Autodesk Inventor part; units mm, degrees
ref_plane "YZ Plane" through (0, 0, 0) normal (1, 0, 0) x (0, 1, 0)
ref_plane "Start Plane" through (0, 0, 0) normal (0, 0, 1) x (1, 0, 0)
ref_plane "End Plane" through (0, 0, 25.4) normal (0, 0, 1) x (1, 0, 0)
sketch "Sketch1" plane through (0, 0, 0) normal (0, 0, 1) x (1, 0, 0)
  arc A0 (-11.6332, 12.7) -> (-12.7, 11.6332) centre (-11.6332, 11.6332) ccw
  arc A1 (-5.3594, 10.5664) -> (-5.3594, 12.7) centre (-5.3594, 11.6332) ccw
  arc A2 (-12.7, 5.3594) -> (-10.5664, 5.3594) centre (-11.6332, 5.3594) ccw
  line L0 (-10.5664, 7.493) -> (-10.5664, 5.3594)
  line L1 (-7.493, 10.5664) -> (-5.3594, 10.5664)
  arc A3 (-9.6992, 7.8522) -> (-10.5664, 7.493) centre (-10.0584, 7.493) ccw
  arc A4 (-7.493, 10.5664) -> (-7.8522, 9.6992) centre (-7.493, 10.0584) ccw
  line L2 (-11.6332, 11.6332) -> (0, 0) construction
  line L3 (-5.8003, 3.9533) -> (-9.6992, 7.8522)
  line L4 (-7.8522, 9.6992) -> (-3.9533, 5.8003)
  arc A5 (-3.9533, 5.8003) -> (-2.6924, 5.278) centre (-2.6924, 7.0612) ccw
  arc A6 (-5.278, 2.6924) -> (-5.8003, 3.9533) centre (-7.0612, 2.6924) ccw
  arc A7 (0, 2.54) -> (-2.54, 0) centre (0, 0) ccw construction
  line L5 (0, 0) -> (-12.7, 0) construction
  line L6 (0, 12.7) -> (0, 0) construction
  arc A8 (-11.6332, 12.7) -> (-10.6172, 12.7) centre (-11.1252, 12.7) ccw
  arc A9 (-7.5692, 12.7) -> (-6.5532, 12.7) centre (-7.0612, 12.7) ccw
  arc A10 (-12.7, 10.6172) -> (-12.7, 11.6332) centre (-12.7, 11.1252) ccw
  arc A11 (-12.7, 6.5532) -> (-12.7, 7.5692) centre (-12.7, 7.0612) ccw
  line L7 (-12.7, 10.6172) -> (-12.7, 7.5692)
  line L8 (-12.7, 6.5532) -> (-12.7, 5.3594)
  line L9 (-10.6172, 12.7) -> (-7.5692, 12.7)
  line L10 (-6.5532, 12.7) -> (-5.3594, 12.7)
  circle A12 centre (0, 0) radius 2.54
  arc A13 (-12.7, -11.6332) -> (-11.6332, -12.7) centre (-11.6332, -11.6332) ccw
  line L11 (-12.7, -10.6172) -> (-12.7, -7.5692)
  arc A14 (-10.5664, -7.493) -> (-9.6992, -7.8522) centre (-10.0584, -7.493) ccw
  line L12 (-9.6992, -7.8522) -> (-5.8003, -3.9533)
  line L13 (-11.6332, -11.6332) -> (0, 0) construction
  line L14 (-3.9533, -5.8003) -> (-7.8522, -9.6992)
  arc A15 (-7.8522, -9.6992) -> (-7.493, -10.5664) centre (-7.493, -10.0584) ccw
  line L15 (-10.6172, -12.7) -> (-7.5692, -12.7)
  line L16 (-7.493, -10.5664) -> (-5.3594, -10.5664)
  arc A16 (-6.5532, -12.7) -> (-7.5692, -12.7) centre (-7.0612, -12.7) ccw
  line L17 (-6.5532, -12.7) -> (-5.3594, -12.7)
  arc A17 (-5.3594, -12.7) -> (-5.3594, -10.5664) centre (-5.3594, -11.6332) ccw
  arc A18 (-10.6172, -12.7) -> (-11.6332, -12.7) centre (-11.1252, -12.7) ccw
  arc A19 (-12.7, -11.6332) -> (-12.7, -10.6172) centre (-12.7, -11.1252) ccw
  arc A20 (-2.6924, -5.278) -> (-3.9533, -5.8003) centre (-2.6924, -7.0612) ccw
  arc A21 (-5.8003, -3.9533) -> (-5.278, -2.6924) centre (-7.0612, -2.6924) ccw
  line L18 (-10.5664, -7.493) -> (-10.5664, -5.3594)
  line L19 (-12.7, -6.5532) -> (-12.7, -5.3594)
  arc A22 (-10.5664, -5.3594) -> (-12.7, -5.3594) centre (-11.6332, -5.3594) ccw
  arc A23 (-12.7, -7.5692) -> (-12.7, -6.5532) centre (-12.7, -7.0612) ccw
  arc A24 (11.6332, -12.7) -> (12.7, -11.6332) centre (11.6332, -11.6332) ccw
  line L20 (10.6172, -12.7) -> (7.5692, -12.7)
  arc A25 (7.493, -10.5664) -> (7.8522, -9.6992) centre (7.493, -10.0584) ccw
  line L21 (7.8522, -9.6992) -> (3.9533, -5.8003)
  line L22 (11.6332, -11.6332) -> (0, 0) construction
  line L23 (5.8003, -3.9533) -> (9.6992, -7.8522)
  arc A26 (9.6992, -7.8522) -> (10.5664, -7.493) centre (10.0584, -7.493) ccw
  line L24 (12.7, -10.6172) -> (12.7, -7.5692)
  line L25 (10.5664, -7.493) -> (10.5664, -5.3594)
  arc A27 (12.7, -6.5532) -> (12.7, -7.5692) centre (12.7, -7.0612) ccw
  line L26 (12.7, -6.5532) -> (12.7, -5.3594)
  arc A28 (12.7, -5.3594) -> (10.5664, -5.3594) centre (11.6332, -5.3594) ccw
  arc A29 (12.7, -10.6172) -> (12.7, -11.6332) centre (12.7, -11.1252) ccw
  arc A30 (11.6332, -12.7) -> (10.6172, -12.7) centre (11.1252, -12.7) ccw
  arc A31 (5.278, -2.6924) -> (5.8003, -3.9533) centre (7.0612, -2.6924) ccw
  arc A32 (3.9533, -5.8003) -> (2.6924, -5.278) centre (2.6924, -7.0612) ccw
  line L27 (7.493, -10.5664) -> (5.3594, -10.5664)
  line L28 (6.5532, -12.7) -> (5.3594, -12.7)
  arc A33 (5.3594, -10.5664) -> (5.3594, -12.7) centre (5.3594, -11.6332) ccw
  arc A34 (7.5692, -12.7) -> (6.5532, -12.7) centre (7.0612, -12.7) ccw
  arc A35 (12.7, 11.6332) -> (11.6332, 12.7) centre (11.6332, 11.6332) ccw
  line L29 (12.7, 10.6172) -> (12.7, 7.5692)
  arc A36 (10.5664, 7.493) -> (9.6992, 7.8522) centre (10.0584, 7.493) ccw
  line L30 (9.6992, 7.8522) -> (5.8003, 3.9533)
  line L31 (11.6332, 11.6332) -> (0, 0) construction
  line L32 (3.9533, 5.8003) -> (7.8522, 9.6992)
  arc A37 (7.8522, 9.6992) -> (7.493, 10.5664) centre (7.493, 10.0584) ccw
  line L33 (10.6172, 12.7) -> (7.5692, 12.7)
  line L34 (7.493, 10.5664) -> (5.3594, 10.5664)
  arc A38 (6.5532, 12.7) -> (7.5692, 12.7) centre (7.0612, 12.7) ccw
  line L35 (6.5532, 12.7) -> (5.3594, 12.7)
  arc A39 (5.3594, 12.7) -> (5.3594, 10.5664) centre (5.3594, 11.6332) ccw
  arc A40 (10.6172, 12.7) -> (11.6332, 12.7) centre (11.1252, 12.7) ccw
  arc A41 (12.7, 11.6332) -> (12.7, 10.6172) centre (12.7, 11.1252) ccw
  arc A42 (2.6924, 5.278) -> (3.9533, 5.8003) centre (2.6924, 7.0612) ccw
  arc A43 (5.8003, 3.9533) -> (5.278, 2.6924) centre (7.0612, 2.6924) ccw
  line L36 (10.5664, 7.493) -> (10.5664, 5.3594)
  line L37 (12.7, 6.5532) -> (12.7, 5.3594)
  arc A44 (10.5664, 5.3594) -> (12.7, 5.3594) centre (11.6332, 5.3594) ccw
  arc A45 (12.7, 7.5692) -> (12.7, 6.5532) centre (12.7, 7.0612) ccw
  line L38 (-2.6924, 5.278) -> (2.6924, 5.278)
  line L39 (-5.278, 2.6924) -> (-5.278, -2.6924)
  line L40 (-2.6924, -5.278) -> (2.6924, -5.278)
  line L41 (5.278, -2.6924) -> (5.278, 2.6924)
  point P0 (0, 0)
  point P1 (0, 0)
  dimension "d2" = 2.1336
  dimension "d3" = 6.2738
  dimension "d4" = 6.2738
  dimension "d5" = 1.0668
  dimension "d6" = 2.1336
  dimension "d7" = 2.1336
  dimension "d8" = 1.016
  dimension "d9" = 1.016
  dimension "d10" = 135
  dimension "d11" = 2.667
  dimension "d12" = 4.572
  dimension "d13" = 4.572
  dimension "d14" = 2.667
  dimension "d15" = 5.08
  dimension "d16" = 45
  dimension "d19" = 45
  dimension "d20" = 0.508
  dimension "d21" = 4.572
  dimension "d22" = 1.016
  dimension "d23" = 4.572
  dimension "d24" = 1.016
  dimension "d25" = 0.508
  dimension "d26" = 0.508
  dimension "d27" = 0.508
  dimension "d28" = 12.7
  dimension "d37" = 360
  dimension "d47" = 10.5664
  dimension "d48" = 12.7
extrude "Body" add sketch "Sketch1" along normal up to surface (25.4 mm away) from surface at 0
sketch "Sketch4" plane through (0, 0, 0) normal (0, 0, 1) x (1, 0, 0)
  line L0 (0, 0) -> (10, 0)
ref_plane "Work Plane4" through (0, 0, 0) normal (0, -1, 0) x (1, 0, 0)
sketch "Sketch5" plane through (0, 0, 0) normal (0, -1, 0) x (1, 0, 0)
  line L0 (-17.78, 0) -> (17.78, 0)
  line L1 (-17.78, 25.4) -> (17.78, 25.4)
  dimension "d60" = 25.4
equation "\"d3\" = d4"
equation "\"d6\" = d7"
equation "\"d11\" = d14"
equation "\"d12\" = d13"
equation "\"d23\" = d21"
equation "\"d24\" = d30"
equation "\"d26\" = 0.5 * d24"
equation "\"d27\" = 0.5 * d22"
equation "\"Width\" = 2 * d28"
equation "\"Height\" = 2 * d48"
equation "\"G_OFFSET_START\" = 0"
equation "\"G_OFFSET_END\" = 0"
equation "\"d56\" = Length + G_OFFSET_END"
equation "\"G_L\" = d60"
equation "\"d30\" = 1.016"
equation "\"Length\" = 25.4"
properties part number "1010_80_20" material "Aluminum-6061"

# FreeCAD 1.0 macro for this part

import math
import FreeCAD as App
import Part
import Sketcher

V = App.Vector
Q = App.Units.Quantity

doc = App.newDocument("Part")
body = doc.addObject("PartDesign::Body", "Body")

sketch1 = doc.addObject("Sketcher::SketchObject", "Sketch")
body.addObject(sketch1)
sketch1.AttachmentSupport = (doc.XY_Plane, [""])
sketch1.MapMode = "FlatFace"
sketch1.addGeometry(Part.ArcOfCircle(Part.Circle(V(-11.1, 12.7, 0), V(0, 0, 1), 0.5), math.radians(180), math.radians(360)), False)
sketch1.addGeometry(Part.ArcOfCircle(Part.Circle(V(-11.6, 11.6, 0), V(0, 0, 1), 1.1), math.radians(90), math.radians(180)), False)
sketch1.addGeometry(Part.ArcOfCircle(Part.Circle(V(-12.7, 11.1, 0), V(0, 0, 1), 0.5), math.radians(-90), math.radians(90)), False)
sketch1.addGeometry(Part.LineSegment(V(-12.7, 10.6, 0), V(-12.7, 7.6, 0)), False)
sketch1.addGeometry(Part.ArcOfCircle(Part.Circle(V(-12.7, 7.1, 0), V(0, 0, 1), 0.5), math.radians(-90), math.radians(90)), False)
sketch1.addGeometry(Part.LineSegment(V(-12.7, 6.6, 0), V(-12.7, 5.4, 0)), False)
sketch1.addGeometry(Part.ArcOfCircle(Part.Circle(V(-11.6, 5.4, 0), V(0, 0, 1), 1.1), math.radians(180), math.radians(360)), False)
sketch1.addGeometry(Part.LineSegment(V(-10.6, 5.4, 0), V(-10.6, 7.5, 0)), False)
sketch1.addGeometry(Part.ArcOfCircle(Part.Circle(V(-10.1, 7.5, 0), V(0, 0, 1), 0.5), math.radians(45), math.radians(180)), False)
sketch1.addGeometry(Part.LineSegment(V(-9.7, 7.9, 0), V(-5.8, 4, 0)), False)
sketch1.addGeometry(Part.ArcOfCircle(Part.Circle(V(-7.1, 2.7, 0), V(0, 0, 1), 1.8), math.radians(0), math.radians(45)), False)
sketch1.addGeometry(Part.LineSegment(V(-5.3, 2.7, 0), V(-5.3, -2.7, 0)), False)
sketch1.addGeometry(Part.ArcOfCircle(Part.Circle(V(-7.1, -2.7, 0), V(0, 0, 1), 1.8), math.radians(-45), math.radians(0)), False)
sketch1.addGeometry(Part.LineSegment(V(-5.8, -4, 0), V(-9.7, -7.9, 0)), False)
sketch1.addGeometry(Part.ArcOfCircle(Part.Circle(V(-10.1, -7.5, 0), V(0, 0, 1), 0.5), math.radians(180), math.radians(315)), False)
sketch1.addGeometry(Part.LineSegment(V(-10.6, -7.5, 0), V(-10.6, -5.4, 0)), False)
sketch1.addGeometry(Part.ArcOfCircle(Part.Circle(V(-11.6, -5.4, 0), V(0, 0, 1), 1.1), math.radians(0), math.radians(180)), False)
sketch1.addGeometry(Part.LineSegment(V(-12.7, -5.4, 0), V(-12.7, -6.6, 0)), False)
sketch1.addGeometry(Part.ArcOfCircle(Part.Circle(V(-12.7, -7.1, 0), V(0, 0, 1), 0.5), math.radians(-90), math.radians(90)), False)
sketch1.addGeometry(Part.LineSegment(V(-12.7, -7.6, 0), V(-12.7, -10.6, 0)), False)
sketch1.addGeometry(Part.ArcOfCircle(Part.Circle(V(-12.7, -11.1, 0), V(0, 0, 1), 0.5), math.radians(-90), math.radians(90)), False)
sketch1.addGeometry(Part.ArcOfCircle(Part.Circle(V(-11.6, -11.6, 0), V(0, 0, 1), 1.1), math.radians(180), math.radians(270)), False)
sketch1.addGeometry(Part.ArcOfCircle(Part.Circle(V(-11.1, -12.7, 0), V(0, 0, 1), 0.5), math.radians(0), math.radians(180)), False)
sketch1.addGeometry(Part.LineSegment(V(-10.6, -12.7, 0), V(-7.6, -12.7, 0)), False)
sketch1.addGeometry(Part.ArcOfCircle(Part.Circle(V(-7.1, -12.7, 0), V(0, 0, 1), 0.5), math.radians(0), math.radians(180)), False)
sketch1.addGeometry(Part.LineSegment(V(-6.6, -12.7, 0), V(-5.4, -12.7, 0)), False)
sketch1.addGeometry(Part.ArcOfCircle(Part.Circle(V(-5.4, -11.6, 0), V(0, 0, 1), 1.1), math.radians(-90), math.radians(90)), False)
sketch1.addGeometry(Part.LineSegment(V(-5.4, -10.6, 0), V(-7.5, -10.6, 0)), False)
sketch1.addGeometry(Part.ArcOfCircle(Part.Circle(V(-7.5, -10.1, 0), V(0, 0, 1), 0.5), math.radians(135), math.radians(270)), False)
sketch1.addGeometry(Part.LineSegment(V(-7.9, -9.7, 0), V(-4, -5.8, 0)), False)
sketch1.addGeometry(Part.ArcOfCircle(Part.Circle(V(-2.7, -7.1, 0), V(0, 0, 1), 1.8), math.radians(90), math.radians(135)), False)
sketch1.addGeometry(Part.LineSegment(V(-2.7, -5.3, 0), V(2.7, -5.3, 0)), False)
sketch1.addGeometry(Part.ArcOfCircle(Part.Circle(V(2.7, -7.1, 0), V(0, 0, 1), 1.8), math.radians(45), math.radians(90)), False)
sketch1.addGeometry(Part.LineSegment(V(4, -5.8, 0), V(7.9, -9.7, 0)), False)
sketch1.addGeometry(Part.ArcOfCircle(Part.Circle(V(7.5, -10.1, 0), V(0, 0, 1), 0.5), math.radians(-90), math.radians(45)), False)
sketch1.addGeometry(Part.LineSegment(V(7.5, -10.6, 0), V(5.4, -10.6, 0)), False)
sketch1.addGeometry(Part.ArcOfCircle(Part.Circle(V(5.4, -11.6, 0), V(0, 0, 1), 1.1), math.radians(90), math.radians(270)), False)
sketch1.addGeometry(Part.LineSegment(V(5.4, -12.7, 0), V(6.6, -12.7, 0)), False)
sketch1.addGeometry(Part.ArcOfCircle(Part.Circle(V(7.1, -12.7, 0), V(0, 0, 1), 0.5), math.radians(0), math.radians(180)), False)
sketch1.addGeometry(Part.LineSegment(V(7.6, -12.7, 0), V(10.6, -12.7, 0)), False)
sketch1.addGeometry(Part.ArcOfCircle(Part.Circle(V(11.1, -12.7, 0), V(0, 0, 1), 0.5), math.radians(0), math.radians(180)), False)
sketch1.addGeometry(Part.ArcOfCircle(Part.Circle(V(11.6, -11.6, 0), V(0, 0, 1), 1.1), math.radians(-90), math.radians(0)), False)
sketch1.addGeometry(Part.ArcOfCircle(Part.Circle(V(12.7, -11.1, 0), V(0, 0, 1), 0.5), math.radians(90), math.radians(270)), False)
sketch1.addGeometry(Part.LineSegment(V(12.7, -10.6, 0), V(12.7, -7.6, 0)), False)
sketch1.addGeometry(Part.ArcOfCircle(Part.Circle(V(12.7, -7.1, 0), V(0, 0, 1), 0.5), math.radians(90), math.radians(270)), False)
sketch1.addGeometry(Part.LineSegment(V(12.7, -6.6, 0), V(12.7, -5.4, 0)), False)
sketch1.addGeometry(Part.ArcOfCircle(Part.Circle(V(11.6, -5.4, 0), V(0, 0, 1), 1.1), math.radians(0), math.radians(180)), False)
sketch1.addGeometry(Part.LineSegment(V(10.6, -5.4, 0), V(10.6, -7.5, 0)), False)
sketch1.addGeometry(Part.ArcOfCircle(Part.Circle(V(10.1, -7.5, 0), V(0, 0, 1), 0.5), math.radians(-135), math.radians(0)), False)
sketch1.addGeometry(Part.LineSegment(V(9.7, -7.9, 0), V(5.8, -4, 0)), False)
sketch1.addGeometry(Part.ArcOfCircle(Part.Circle(V(7.1, -2.7, 0), V(0, 0, 1), 1.8), math.radians(180), math.radians(225)), False)
sketch1.addGeometry(Part.LineSegment(V(5.3, -2.7, 0), V(5.3, 2.7, 0)), False)
sketch1.addGeometry(Part.ArcOfCircle(Part.Circle(V(7.1, 2.7, 0), V(0, 0, 1), 1.8), math.radians(135), math.radians(180)), False)
sketch1.addGeometry(Part.LineSegment(V(5.8, 4, 0), V(9.7, 7.9, 0)), False)
sketch1.addGeometry(Part.ArcOfCircle(Part.Circle(V(10.1, 7.5, 0), V(0, 0, 1), 0.5), math.radians(0), math.radians(135)), False)
sketch1.addGeometry(Part.LineSegment(V(10.6, 7.5, 0), V(10.6, 5.4, 0)), False)
sketch1.addGeometry(Part.ArcOfCircle(Part.Circle(V(11.6, 5.4, 0), V(0, 0, 1), 1.1), math.radians(180), math.radians(360)), False)
sketch1.addGeometry(Part.LineSegment(V(12.7, 5.4, 0), V(12.7, 6.6, 0)), False)
sketch1.addGeometry(Part.ArcOfCircle(Part.Circle(V(12.7, 7.1, 0), V(0, 0, 1), 0.5), math.radians(90), math.radians(270)), False)
sketch1.addGeometry(Part.LineSegment(V(12.7, 7.6, 0), V(12.7, 10.6, 0)), False)
sketch1.addGeometry(Part.ArcOfCircle(Part.Circle(V(12.7, 11.1, 0), V(0, 0, 1), 0.5), math.radians(90), math.radians(270)), False)
sketch1.addGeometry(Part.ArcOfCircle(Part.Circle(V(11.6, 11.6, 0), V(0, 0, 1), 1.1), math.radians(0), math.radians(90)), False)
sketch1.addGeometry(Part.ArcOfCircle(Part.Circle(V(11.1, 12.7, 0), V(0, 0, 1), 0.5), math.radians(180), math.radians(360)), False)
sketch1.addGeometry(Part.LineSegment(V(10.6, 12.7, 0), V(7.6, 12.7, 0)), False)
sketch1.addGeometry(Part.ArcOfCircle(Part.Circle(V(7.1, 12.7, 0), V(0, 0, 1), 0.5), math.radians(180), math.radians(360)), False)
sketch1.addGeometry(Part.LineSegment(V(6.6, 12.7, 0), V(5.4, 12.7, 0)), False)
sketch1.addGeometry(Part.ArcOfCircle(Part.Circle(V(5.4, 11.6, 0), V(0, 0, 1), 1.1), math.radians(90), math.radians(270)), False)
sketch1.addGeometry(Part.LineSegment(V(5.4, 10.6, 0), V(7.5, 10.6, 0)), False)
sketch1.addGeometry(Part.ArcOfCircle(Part.Circle(V(7.5, 10.1, 0), V(0, 0, 1), 0.5), math.radians(-45), math.radians(90)), False)
sketch1.addGeometry(Part.LineSegment(V(7.9, 9.7, 0), V(4, 5.8, 0)), False)
sketch1.addGeometry(Part.ArcOfCircle(Part.Circle(V(2.7, 7.1, 0), V(0, 0, 1), 1.8), math.radians(-90), math.radians(-45)), False)
sketch1.addGeometry(Part.LineSegment(V(2.7, 5.3, 0), V(-2.7, 5.3, 0)), False)
sketch1.addGeometry(Part.ArcOfCircle(Part.Circle(V(-2.7, 7.1, 0), V(0, 0, 1), 1.8), math.radians(-135), math.radians(-90)), False)
sketch1.addGeometry(Part.LineSegment(V(-4, 5.8, 0), V(-7.9, 9.7, 0)), False)
sketch1.addGeometry(Part.ArcOfCircle(Part.Circle(V(-7.5, 10.1, 0), V(0, 0, 1), 0.5), math.radians(90), math.radians(225)), False)
sketch1.addGeometry(Part.LineSegment(V(-7.5, 10.6, 0), V(-5.4, 10.6, 0)), False)
sketch1.addGeometry(Part.ArcOfCircle(Part.Circle(V(-5.4, 11.6, 0), V(0, 0, 1), 1.1), math.radians(-90), math.radians(90)), False)
sketch1.addGeometry(Part.LineSegment(V(-5.4, 12.7, 0), V(-6.6, 12.7, 0)), False)
sketch1.addGeometry(Part.ArcOfCircle(Part.Circle(V(-7.1, 12.7, 0), V(0, 0, 1), 0.5), math.radians(180), math.radians(360)), False)
sketch1.addGeometry(Part.LineSegment(V(-7.6, 12.7, 0), V(-10.6, 12.7, 0)), False)
sketch1.addGeometry(Part.Circle(V(0, 0, 0), V(0, 0, 1), 2.5), False)
sketch1.addConstraint(Sketcher.Constraint("Coincident", 0, 1, 1, 1))
sketch1.addConstraint(Sketcher.Constraint("Coincident", 1, 2, 2, 2))
sketch1.addConstraint(Sketcher.Constraint("Coincident", 2, 1, 3, 1))
sketch1.addConstraint(Sketcher.Constraint("Coincident", 3, 2, 4, 2))
sketch1.addConstraint(Sketcher.Constraint("Coincident", 4, 1, 5, 1))
sketch1.addConstraint(Sketcher.Constraint("Tangent", 5, 2, 6, 1))
sketch1.addConstraint(Sketcher.Constraint("Tangent", 6, 2, 7, 1))
sketch1.addConstraint(Sketcher.Constraint("Tangent", 7, 2, 8, 2))
sketch1.addConstraint(Sketcher.Constraint("Tangent", 8, 1, 9, 1))
sketch1.addConstraint(Sketcher.Constraint("Tangent", 9, 2, 10, 2))
sketch1.addConstraint(Sketcher.Constraint("Tangent", 10, 1, 11, 1))
sketch1.addConstraint(Sketcher.Constraint("Tangent", 11, 2, 12, 2))
sketch1.addConstraint(Sketcher.Constraint("Tangent", 12, 1, 13, 1))
sketch1.addConstraint(Sketcher.Constraint("Tangent", 13, 2, 14, 2))
sketch1.addConstraint(Sketcher.Constraint("Tangent", 14, 1, 15, 1))
sketch1.addConstraint(Sketcher.Constraint("Tangent", 15, 2, 16, 1))
sketch1.addConstraint(Sketcher.Constraint("Tangent", 16, 2, 17, 1))
sketch1.addConstraint(Sketcher.Constraint("Coincident", 17, 2, 18, 2))
sketch1.addConstraint(Sketcher.Constraint("Coincident", 18, 1, 19, 1))
sketch1.addConstraint(Sketcher.Constraint("Coincident", 19, 2, 20, 2))
sketch1.addConstraint(Sketcher.Constraint("Coincident", 20, 1, 21, 1))
sketch1.addConstraint(Sketcher.Constraint("Coincident", 21, 2, 22, 2))
sketch1.addConstraint(Sketcher.Constraint("Coincident", 22, 1, 23, 1))
sketch1.addConstraint(Sketcher.Constraint("Coincident", 23, 2, 24, 2))
sketch1.addConstraint(Sketcher.Constraint("Coincident", 24, 1, 25, 1))
sketch1.addConstraint(Sketcher.Constraint("Tangent", 25, 2, 26, 1))
sketch1.addConstraint(Sketcher.Constraint("Tangent", 26, 2, 27, 1))
sketch1.addConstraint(Sketcher.Constraint("Tangent", 27, 2, 28, 2))
sketch1.addConstraint(Sketcher.Constraint("Tangent", 28, 1, 29, 1))
sketch1.addConstraint(Sketcher.Constraint("Tangent", 29, 2, 30, 2))
sketch1.addConstraint(Sketcher.Constraint("Tangent", 30, 1, 31, 1))
sketch1.addConstraint(Sketcher.Constraint("Tangent", 31, 2, 32, 2))
sketch1.addConstraint(Sketcher.Constraint("Tangent", 32, 1, 33, 1))
sketch1.addConstraint(Sketcher.Constraint("Tangent", 33, 2, 34, 2))
sketch1.addConstraint(Sketcher.Constraint("Tangent", 34, 1, 35, 1))
sketch1.addConstraint(Sketcher.Constraint("Tangent", 35, 2, 36, 1))
sketch1.addConstraint(Sketcher.Constraint("Tangent", 36, 2, 37, 1))
sketch1.addConstraint(Sketcher.Constraint("Coincident", 37, 2, 38, 2))
sketch1.addConstraint(Sketcher.Constraint("Coincident", 38, 1, 39, 1))
sketch1.addConstraint(Sketcher.Constraint("Coincident", 39, 2, 40, 2))
sketch1.addConstraint(Sketcher.Constraint("Coincident", 40, 1, 41, 1))
sketch1.addConstraint(Sketcher.Constraint("Coincident", 41, 2, 42, 2))
sketch1.addConstraint(Sketcher.Constraint("Coincident", 42, 1, 43, 1))
sketch1.addConstraint(Sketcher.Constraint("Coincident", 43, 2, 44, 2))
sketch1.addConstraint(Sketcher.Constraint("Coincident", 44, 1, 45, 1))
sketch1.addConstraint(Sketcher.Constraint("Tangent", 45, 2, 46, 1))
sketch1.addConstraint(Sketcher.Constraint("Tangent", 46, 2, 47, 1))
sketch1.addConstraint(Sketcher.Constraint("Tangent", 47, 2, 48, 2))
sketch1.addConstraint(Sketcher.Constraint("Tangent", 48, 1, 49, 1))
sketch1.addConstraint(Sketcher.Constraint("Tangent", 49, 2, 50, 2))
sketch1.addConstraint(Sketcher.Constraint("Tangent", 50, 1, 51, 1))
sketch1.addConstraint(Sketcher.Constraint("Tangent", 51, 2, 52, 2))
sketch1.addConstraint(Sketcher.Constraint("Tangent", 52, 1, 53, 1))
sketch1.addConstraint(Sketcher.Constraint("Tangent", 53, 2, 54, 2))
sketch1.addConstraint(Sketcher.Constraint("Tangent", 54, 1, 55, 1))
sketch1.addConstraint(Sketcher.Constraint("Tangent", 55, 2, 56, 1))
sketch1.addConstraint(Sketcher.Constraint("Tangent", 56, 2, 57, 1))
sketch1.addConstraint(Sketcher.Constraint("Coincident", 57, 2, 58, 2))
sketch1.addConstraint(Sketcher.Constraint("Coincident", 58, 1, 59, 1))
sketch1.addConstraint(Sketcher.Constraint("Coincident", 59, 2, 60, 2))
sketch1.addConstraint(Sketcher.Constraint("Coincident", 60, 1, 61, 1))
sketch1.addConstraint(Sketcher.Constraint("Coincident", 61, 2, 62, 2))
sketch1.addConstraint(Sketcher.Constraint("Coincident", 62, 1, 63, 1))
sketch1.addConstraint(Sketcher.Constraint("Coincident", 63, 2, 64, 2))
sketch1.addConstraint(Sketcher.Constraint("Coincident", 64, 1, 65, 1))
sketch1.addConstraint(Sketcher.Constraint("Tangent", 65, 2, 66, 1))
sketch1.addConstraint(Sketcher.Constraint("Tangent", 66, 2, 67, 1))
sketch1.addConstraint(Sketcher.Constraint("Tangent", 67, 2, 68, 2))
sketch1.addConstraint(Sketcher.Constraint("Tangent", 68, 1, 69, 1))
sketch1.addConstraint(Sketcher.Constraint("Tangent", 69, 2, 70, 2))
sketch1.addConstraint(Sketcher.Constraint("Tangent", 70, 1, 71, 1))
sketch1.addConstraint(Sketcher.Constraint("Tangent", 71, 2, 72, 2))
sketch1.addConstraint(Sketcher.Constraint("Tangent", 72, 1, 73, 1))
sketch1.addConstraint(Sketcher.Constraint("Tangent", 73, 2, 74, 2))
sketch1.addConstraint(Sketcher.Constraint("Tangent", 74, 1, 75, 1))
sketch1.addConstraint(Sketcher.Constraint("Tangent", 75, 2, 76, 1))
sketch1.addConstraint(Sketcher.Constraint("Tangent", 76, 2, 77, 1))
sketch1.addConstraint(Sketcher.Constraint("Coincident", 77, 2, 78, 2))
sketch1.addConstraint(Sketcher.Constraint("Coincident", 78, 1, 79, 1))
sketch1.addConstraint(Sketcher.Constraint("Coincident", 79, 2, 0, 2))
sketch1.addConstraint(Sketcher.Constraint("Vertical", 3))
sketch1.addConstraint(Sketcher.Constraint("Vertical", 5))
sketch1.addConstraint(Sketcher.Constraint("Vertical", 7))
sketch1.addConstraint(Sketcher.Constraint("Vertical", 11))
sketch1.addConstraint(Sketcher.Constraint("Vertical", 15))
sketch1.addConstraint(Sketcher.Constraint("Vertical", 17))
sketch1.addConstraint(Sketcher.Constraint("Vertical", 19))
sketch1.addConstraint(Sketcher.Constraint("Horizontal", 23))
sketch1.addConstraint(Sketcher.Constraint("Horizontal", 25))
sketch1.addConstraint(Sketcher.Constraint("Horizontal", 27))
sketch1.addConstraint(Sketcher.Constraint("Horizontal", 31))
sketch1.addConstraint(Sketcher.Constraint("Horizontal", 35))
sketch1.addConstraint(Sketcher.Constraint("Horizontal", 37))
sketch1.addConstraint(Sketcher.Constraint("Horizontal", 39))
sketch1.addConstraint(Sketcher.Constraint("Vertical", 43))
sketch1.addConstraint(Sketcher.Constraint("Vertical", 45))
sketch1.addConstraint(Sketcher.Constraint("Vertical", 47))
sketch1.addConstraint(Sketcher.Constraint("Vertical", 51))
sketch1.addConstraint(Sketcher.Constraint("Vertical", 55))
sketch1.addConstraint(Sketcher.Constraint("Vertical", 57))
sketch1.addConstraint(Sketcher.Constraint("Vertical", 59))
sketch1.addConstraint(Sketcher.Constraint("Horizontal", 63))
sketch1.addConstraint(Sketcher.Constraint("Horizontal", 65))
sketch1.addConstraint(Sketcher.Constraint("Horizontal", 67))
sketch1.addConstraint(Sketcher.Constraint("Horizontal", 71))
sketch1.addConstraint(Sketcher.Constraint("Horizontal", 75))
sketch1.addConstraint(Sketcher.Constraint("Horizontal", 77))
sketch1.addConstraint(Sketcher.Constraint("Horizontal", 79))
sketch1.addConstraint(Sketcher.Constraint("Coincident", 80, 3, -1, 1))
sketch1.addConstraint(Sketcher.Constraint("Equal", 0, 2))
sketch1.addConstraint(Sketcher.Constraint("Equal", 2, 4))
sketch1.addConstraint(Sketcher.Constraint("Equal", 1, 6))
sketch1.addConstraint(Sketcher.Constraint("Equal", 4, 8))
sketch1.addConstraint(Sketcher.Constraint("Equal", 10, 12))
sketch1.addConstraint(Sketcher.Constraint("Equal", 8, 14))
sketch1.addConstraint(Sketcher.Constraint("Equal", 6, 16))
sketch1.addConstraint(Sketcher.Constraint("Equal", 14, 18))
sketch1.addConstraint(Sketcher.Constraint("Equal", 18, 20))
sketch1.addConstraint(Sketcher.Constraint("Equal", 16, 21))
sketch1.addConstraint(Sketcher.Constraint("Equal", 20, 22))
sketch1.addConstraint(Sketcher.Constraint("Equal", 22, 24))
sketch1.addConstraint(Sketcher.Constraint("Equal", 21, 26))
sketch1.addConstraint(Sketcher.Constraint("Equal", 24, 28))
sketch1.addConstraint(Sketcher.Constraint("Equal", 12, 30))
sketch1.addConstraint(Sketcher.Constraint("Equal", 30, 32))
sketch1.addConstraint(Sketcher.Constraint("Equal", 28, 34))
sketch1.addConstraint(Sketcher.Constraint("Equal", 26, 36))
sketch1.addConstraint(Sketcher.Constraint("Equal", 34, 38))
sketch1.addConstraint(Sketcher.Constraint("Equal", 38, 40))
sketch1.addConstraint(Sketcher.Constraint("Equal", 36, 41))
sketch1.addConstraint(Sketcher.Constraint("Equal", 40, 42))
sketch1.addConstraint(Sketcher.Constraint("Equal", 42, 44))
sketch1.addConstraint(Sketcher.Constraint("Equal", 41, 46))
sketch1.addConstraint(Sketcher.Constraint("Equal", 44, 48))
sketch1.addConstraint(Sketcher.Constraint("Equal", 32, 50))
sketch1.addConstraint(Sketcher.Constraint("Equal", 50, 52))
sketch1.addConstraint(Sketcher.Constraint("Equal", 48, 54))
sketch1.addConstraint(Sketcher.Constraint("Equal", 46, 56))
sketch1.addConstraint(Sketcher.Constraint("Equal", 54, 58))
sketch1.addConstraint(Sketcher.Constraint("Equal", 58, 60))
sketch1.addConstraint(Sketcher.Constraint("Equal", 56, 61))
sketch1.addConstraint(Sketcher.Constraint("Equal", 60, 62))
sketch1.addConstraint(Sketcher.Constraint("Equal", 62, 64))
sketch1.addConstraint(Sketcher.Constraint("Equal", 61, 66))
sketch1.addConstraint(Sketcher.Constraint("Equal", 64, 68))
sketch1.addConstraint(Sketcher.Constraint("Equal", 52, 70))
sketch1.addConstraint(Sketcher.Constraint("Equal", 70, 72))
sketch1.addConstraint(Sketcher.Constraint("Equal", 68, 74))
sketch1.addConstraint(Sketcher.Constraint("Equal", 66, 76))
sketch1.addConstraint(Sketcher.Constraint("Equal", 74, 78))
sketch1.addConstraint(Sketcher.Constraint("Symmetric", 0, 3, 40, 3, -1, 1))
sketch1.addConstraint(Sketcher.Constraint("Symmetric", 1, 3, 41, 3, -1, 1))
sketch1.addConstraint(Sketcher.Constraint("Symmetric", 2, 3, 42, 3, -1, 1))
sketch1.addConstraint(Sketcher.Constraint("Symmetric", 4, 3, 44, 3, -1, 1))
sketch1.addConstraint(Sketcher.Constraint("Symmetric", 6, 3, 46, 3, -1, 1))
sketch1.addConstraint(Sketcher.Constraint("Symmetric", 10, 3, 50, 3, -1, 1))
sketch1.addConstraint(Sketcher.Constraint("Symmetric", 14, 3, 54, 3, -1, 1))
sketch1.addConstraint(Sketcher.Constraint("Symmetric", 18, 3, 58, 3, -1, 1))
sketch1.addConstraint(Sketcher.Constraint("Symmetric", 20, 3, 60, 3, -1, 1))
sketch1.addConstraint(Sketcher.Constraint("Symmetric", 21, 3, 61, 3, -1, 1))
sketch1.addConstraint(Sketcher.Constraint("Symmetric", 22, 3, 62, 3, -1, 1))
sketch1.addConstraint(Sketcher.Constraint("Symmetric", 24, 3, 64, 3, -1, 1))
sketch1.addConstraint(Sketcher.Constraint("Symmetric", 26, 3, 66, 3, -1, 1))
sketch1.addConstraint(Sketcher.Constraint("Symmetric", 30, 3, 70, 3, -1, 1))
sketch1.addConstraint(Sketcher.Constraint("Symmetric", 34, 3, 74, 3, -1, 1))
sketch1.addConstraint(Sketcher.Constraint("Symmetric", 38, 3, 78, 3, -1, 1))
sketch1.addConstraint(Sketcher.Constraint("Symmetric", 28, 3, 34, 3, -2))
sketch1.addConstraint(Sketcher.Constraint("Symmetric", 24, 3, 38, 3, -2))
sketch1.addConstraint(Sketcher.Constraint("Symmetric", 22, 3, 40, 3, -2))
sketch1.addConstraint(Sketcher.Constraint("Symmetric", 21, 3, 41, 3, -2))
sketch1.addConstraint(Sketcher.Constraint("Symmetric", 20, 3, 42, 3, -2))
sketch1.addConstraint(Sketcher.Constraint("Symmetric", 18, 3, 44, 3, -2))
sketch1.addConstraint(Sketcher.Constraint("Symmetric", 16, 3, 46, 3, -2))
sketch1.addConstraint(Sketcher.Constraint("Symmetric", 13, 2, 48, 1, -2))
sketch1.addConstraint(Sketcher.Constraint("Symmetric", 9, 2, 52, 1, -2))
sketch1.addConstraint(Sketcher.Constraint("Symmetric", 69, 2, 72, 1, -2))
sketch1.addConstraint(Sketcher.Constraint("Perpendicular", 9, 13))
sketch1.addConstraint(Sketcher.Constraint("Parallel", 13, 29))
sketch1.addConstraint(Sketcher.Constraint("Perpendicular", 29, 33))
sketch1.addConstraint(Sketcher.Constraint("Horizontal", 22, 3, 24, 3))
sketch1.addConstraint(Sketcher.Constraint("Horizontal", 21, 3, 26, 3))
sketch1.addConstraint(Sketcher.Constraint("Horizontal", 18, 3, 30, 3))
sketch1.addConstraint(Sketcher.Constraint("Horizontal", 6, 3, 56, 3))
sketch1.addConstraint(Sketcher.Constraint("Horizontal", 78, 3, 0, 1))
sketch1.addConstraint(Sketcher.Constraint("Horizontal", 76, 3, 1, 2))
sketch1.addConstraint(Sketcher.Constraint("Horizontal", 21, 2, 22, 1))
sketch1.addConstraint(Sketcher.Constraint("Horizontal", 37, 2, 38, 1))
sketch1.addConstraint(Sketcher.Constraint("Horizontal", 61, 2, 62, 1))
sketch1.addConstraint(Sketcher.Constraint("Horizontal", 77, 2, 78, 1))
sketch1.addConstraint(Sketcher.Constraint("Vertical", 2, 3, 4, 3))
sketch1.addConstraint(Sketcher.Constraint("Vertical", 1, 3, 6, 3))
sketch1.addConstraint(Sketcher.Constraint("Vertical", 12, 3, 24, 3))
sketch1.addConstraint(Sketcher.Constraint("Vertical", 36, 3, 66, 3))
sketch1.addConstraint(Sketcher.Constraint("Vertical", 26, 3, 76, 3))
sketch1.addConstraint(Sketcher.Constraint("Vertical", 21, 3, 0, 1))
sketch1.addConstraint(Sketcher.Constraint("Vertical", 20, 3, 1, 2))
sketch1.addConstraint(Sketcher.Constraint("Vertical", 1, 2, 2, 1))
sketch1.addConstraint(Sketcher.Constraint("Vertical", 17, 2, 18, 1))
sketch1.addConstraint(Sketcher.Constraint("Vertical", 41, 2, 42, 1))
sketch1.addConstraint(Sketcher.Constraint("Vertical", 57, 2, 58, 1))
sketch1.addConstraint(Sketcher.Constraint("Equal", 79, 3))
sketch1.addConstraint(Sketcher.Constraint("Equal", 77, 5))
sketch1.addConstraint(Sketcher.Constraint("Equal", 75, 7))
sketch1.addConstraint(Sketcher.Constraint("Equal", 71, 11))
sketch1.addConstraint(Sketcher.Constraint("Diameter", 80, Q("0.2 in")))
sketch1.addConstraint(Sketcher.Constraint("Radius", 0, Q("0.02 in")))
sketch1.addConstraint(Sketcher.Constraint("Radius", 1, Q("0.042 in")))
sketch1.addConstraint(Sketcher.Constraint("DistanceY", -1, 1, 0, 3, Q("0.5 in")))
sketch1.addConstraint(Sketcher.Constraint("DistanceX", 27, 2, 27, 1, Q("0.084 in")))
sketch1.addConstraint(Sketcher.Constraint("DistanceX", 23, 1, 23, 2, Q("0.12 in")))
sketch1.addConstraint(Sketcher.Constraint("Radius", 10, Q("0.0702 in")))
sketch1.addConstraint(Sketcher.Constraint("DistanceX", 25, 1, 25, 2, Q("0.047 in")))
pad1 = doc.addObject("PartDesign::Pad", "Pad")
body.addObject(pad1)
pad1.Profile = sketch1
pad1.Length = Q("1 in")

doc.recompute()
